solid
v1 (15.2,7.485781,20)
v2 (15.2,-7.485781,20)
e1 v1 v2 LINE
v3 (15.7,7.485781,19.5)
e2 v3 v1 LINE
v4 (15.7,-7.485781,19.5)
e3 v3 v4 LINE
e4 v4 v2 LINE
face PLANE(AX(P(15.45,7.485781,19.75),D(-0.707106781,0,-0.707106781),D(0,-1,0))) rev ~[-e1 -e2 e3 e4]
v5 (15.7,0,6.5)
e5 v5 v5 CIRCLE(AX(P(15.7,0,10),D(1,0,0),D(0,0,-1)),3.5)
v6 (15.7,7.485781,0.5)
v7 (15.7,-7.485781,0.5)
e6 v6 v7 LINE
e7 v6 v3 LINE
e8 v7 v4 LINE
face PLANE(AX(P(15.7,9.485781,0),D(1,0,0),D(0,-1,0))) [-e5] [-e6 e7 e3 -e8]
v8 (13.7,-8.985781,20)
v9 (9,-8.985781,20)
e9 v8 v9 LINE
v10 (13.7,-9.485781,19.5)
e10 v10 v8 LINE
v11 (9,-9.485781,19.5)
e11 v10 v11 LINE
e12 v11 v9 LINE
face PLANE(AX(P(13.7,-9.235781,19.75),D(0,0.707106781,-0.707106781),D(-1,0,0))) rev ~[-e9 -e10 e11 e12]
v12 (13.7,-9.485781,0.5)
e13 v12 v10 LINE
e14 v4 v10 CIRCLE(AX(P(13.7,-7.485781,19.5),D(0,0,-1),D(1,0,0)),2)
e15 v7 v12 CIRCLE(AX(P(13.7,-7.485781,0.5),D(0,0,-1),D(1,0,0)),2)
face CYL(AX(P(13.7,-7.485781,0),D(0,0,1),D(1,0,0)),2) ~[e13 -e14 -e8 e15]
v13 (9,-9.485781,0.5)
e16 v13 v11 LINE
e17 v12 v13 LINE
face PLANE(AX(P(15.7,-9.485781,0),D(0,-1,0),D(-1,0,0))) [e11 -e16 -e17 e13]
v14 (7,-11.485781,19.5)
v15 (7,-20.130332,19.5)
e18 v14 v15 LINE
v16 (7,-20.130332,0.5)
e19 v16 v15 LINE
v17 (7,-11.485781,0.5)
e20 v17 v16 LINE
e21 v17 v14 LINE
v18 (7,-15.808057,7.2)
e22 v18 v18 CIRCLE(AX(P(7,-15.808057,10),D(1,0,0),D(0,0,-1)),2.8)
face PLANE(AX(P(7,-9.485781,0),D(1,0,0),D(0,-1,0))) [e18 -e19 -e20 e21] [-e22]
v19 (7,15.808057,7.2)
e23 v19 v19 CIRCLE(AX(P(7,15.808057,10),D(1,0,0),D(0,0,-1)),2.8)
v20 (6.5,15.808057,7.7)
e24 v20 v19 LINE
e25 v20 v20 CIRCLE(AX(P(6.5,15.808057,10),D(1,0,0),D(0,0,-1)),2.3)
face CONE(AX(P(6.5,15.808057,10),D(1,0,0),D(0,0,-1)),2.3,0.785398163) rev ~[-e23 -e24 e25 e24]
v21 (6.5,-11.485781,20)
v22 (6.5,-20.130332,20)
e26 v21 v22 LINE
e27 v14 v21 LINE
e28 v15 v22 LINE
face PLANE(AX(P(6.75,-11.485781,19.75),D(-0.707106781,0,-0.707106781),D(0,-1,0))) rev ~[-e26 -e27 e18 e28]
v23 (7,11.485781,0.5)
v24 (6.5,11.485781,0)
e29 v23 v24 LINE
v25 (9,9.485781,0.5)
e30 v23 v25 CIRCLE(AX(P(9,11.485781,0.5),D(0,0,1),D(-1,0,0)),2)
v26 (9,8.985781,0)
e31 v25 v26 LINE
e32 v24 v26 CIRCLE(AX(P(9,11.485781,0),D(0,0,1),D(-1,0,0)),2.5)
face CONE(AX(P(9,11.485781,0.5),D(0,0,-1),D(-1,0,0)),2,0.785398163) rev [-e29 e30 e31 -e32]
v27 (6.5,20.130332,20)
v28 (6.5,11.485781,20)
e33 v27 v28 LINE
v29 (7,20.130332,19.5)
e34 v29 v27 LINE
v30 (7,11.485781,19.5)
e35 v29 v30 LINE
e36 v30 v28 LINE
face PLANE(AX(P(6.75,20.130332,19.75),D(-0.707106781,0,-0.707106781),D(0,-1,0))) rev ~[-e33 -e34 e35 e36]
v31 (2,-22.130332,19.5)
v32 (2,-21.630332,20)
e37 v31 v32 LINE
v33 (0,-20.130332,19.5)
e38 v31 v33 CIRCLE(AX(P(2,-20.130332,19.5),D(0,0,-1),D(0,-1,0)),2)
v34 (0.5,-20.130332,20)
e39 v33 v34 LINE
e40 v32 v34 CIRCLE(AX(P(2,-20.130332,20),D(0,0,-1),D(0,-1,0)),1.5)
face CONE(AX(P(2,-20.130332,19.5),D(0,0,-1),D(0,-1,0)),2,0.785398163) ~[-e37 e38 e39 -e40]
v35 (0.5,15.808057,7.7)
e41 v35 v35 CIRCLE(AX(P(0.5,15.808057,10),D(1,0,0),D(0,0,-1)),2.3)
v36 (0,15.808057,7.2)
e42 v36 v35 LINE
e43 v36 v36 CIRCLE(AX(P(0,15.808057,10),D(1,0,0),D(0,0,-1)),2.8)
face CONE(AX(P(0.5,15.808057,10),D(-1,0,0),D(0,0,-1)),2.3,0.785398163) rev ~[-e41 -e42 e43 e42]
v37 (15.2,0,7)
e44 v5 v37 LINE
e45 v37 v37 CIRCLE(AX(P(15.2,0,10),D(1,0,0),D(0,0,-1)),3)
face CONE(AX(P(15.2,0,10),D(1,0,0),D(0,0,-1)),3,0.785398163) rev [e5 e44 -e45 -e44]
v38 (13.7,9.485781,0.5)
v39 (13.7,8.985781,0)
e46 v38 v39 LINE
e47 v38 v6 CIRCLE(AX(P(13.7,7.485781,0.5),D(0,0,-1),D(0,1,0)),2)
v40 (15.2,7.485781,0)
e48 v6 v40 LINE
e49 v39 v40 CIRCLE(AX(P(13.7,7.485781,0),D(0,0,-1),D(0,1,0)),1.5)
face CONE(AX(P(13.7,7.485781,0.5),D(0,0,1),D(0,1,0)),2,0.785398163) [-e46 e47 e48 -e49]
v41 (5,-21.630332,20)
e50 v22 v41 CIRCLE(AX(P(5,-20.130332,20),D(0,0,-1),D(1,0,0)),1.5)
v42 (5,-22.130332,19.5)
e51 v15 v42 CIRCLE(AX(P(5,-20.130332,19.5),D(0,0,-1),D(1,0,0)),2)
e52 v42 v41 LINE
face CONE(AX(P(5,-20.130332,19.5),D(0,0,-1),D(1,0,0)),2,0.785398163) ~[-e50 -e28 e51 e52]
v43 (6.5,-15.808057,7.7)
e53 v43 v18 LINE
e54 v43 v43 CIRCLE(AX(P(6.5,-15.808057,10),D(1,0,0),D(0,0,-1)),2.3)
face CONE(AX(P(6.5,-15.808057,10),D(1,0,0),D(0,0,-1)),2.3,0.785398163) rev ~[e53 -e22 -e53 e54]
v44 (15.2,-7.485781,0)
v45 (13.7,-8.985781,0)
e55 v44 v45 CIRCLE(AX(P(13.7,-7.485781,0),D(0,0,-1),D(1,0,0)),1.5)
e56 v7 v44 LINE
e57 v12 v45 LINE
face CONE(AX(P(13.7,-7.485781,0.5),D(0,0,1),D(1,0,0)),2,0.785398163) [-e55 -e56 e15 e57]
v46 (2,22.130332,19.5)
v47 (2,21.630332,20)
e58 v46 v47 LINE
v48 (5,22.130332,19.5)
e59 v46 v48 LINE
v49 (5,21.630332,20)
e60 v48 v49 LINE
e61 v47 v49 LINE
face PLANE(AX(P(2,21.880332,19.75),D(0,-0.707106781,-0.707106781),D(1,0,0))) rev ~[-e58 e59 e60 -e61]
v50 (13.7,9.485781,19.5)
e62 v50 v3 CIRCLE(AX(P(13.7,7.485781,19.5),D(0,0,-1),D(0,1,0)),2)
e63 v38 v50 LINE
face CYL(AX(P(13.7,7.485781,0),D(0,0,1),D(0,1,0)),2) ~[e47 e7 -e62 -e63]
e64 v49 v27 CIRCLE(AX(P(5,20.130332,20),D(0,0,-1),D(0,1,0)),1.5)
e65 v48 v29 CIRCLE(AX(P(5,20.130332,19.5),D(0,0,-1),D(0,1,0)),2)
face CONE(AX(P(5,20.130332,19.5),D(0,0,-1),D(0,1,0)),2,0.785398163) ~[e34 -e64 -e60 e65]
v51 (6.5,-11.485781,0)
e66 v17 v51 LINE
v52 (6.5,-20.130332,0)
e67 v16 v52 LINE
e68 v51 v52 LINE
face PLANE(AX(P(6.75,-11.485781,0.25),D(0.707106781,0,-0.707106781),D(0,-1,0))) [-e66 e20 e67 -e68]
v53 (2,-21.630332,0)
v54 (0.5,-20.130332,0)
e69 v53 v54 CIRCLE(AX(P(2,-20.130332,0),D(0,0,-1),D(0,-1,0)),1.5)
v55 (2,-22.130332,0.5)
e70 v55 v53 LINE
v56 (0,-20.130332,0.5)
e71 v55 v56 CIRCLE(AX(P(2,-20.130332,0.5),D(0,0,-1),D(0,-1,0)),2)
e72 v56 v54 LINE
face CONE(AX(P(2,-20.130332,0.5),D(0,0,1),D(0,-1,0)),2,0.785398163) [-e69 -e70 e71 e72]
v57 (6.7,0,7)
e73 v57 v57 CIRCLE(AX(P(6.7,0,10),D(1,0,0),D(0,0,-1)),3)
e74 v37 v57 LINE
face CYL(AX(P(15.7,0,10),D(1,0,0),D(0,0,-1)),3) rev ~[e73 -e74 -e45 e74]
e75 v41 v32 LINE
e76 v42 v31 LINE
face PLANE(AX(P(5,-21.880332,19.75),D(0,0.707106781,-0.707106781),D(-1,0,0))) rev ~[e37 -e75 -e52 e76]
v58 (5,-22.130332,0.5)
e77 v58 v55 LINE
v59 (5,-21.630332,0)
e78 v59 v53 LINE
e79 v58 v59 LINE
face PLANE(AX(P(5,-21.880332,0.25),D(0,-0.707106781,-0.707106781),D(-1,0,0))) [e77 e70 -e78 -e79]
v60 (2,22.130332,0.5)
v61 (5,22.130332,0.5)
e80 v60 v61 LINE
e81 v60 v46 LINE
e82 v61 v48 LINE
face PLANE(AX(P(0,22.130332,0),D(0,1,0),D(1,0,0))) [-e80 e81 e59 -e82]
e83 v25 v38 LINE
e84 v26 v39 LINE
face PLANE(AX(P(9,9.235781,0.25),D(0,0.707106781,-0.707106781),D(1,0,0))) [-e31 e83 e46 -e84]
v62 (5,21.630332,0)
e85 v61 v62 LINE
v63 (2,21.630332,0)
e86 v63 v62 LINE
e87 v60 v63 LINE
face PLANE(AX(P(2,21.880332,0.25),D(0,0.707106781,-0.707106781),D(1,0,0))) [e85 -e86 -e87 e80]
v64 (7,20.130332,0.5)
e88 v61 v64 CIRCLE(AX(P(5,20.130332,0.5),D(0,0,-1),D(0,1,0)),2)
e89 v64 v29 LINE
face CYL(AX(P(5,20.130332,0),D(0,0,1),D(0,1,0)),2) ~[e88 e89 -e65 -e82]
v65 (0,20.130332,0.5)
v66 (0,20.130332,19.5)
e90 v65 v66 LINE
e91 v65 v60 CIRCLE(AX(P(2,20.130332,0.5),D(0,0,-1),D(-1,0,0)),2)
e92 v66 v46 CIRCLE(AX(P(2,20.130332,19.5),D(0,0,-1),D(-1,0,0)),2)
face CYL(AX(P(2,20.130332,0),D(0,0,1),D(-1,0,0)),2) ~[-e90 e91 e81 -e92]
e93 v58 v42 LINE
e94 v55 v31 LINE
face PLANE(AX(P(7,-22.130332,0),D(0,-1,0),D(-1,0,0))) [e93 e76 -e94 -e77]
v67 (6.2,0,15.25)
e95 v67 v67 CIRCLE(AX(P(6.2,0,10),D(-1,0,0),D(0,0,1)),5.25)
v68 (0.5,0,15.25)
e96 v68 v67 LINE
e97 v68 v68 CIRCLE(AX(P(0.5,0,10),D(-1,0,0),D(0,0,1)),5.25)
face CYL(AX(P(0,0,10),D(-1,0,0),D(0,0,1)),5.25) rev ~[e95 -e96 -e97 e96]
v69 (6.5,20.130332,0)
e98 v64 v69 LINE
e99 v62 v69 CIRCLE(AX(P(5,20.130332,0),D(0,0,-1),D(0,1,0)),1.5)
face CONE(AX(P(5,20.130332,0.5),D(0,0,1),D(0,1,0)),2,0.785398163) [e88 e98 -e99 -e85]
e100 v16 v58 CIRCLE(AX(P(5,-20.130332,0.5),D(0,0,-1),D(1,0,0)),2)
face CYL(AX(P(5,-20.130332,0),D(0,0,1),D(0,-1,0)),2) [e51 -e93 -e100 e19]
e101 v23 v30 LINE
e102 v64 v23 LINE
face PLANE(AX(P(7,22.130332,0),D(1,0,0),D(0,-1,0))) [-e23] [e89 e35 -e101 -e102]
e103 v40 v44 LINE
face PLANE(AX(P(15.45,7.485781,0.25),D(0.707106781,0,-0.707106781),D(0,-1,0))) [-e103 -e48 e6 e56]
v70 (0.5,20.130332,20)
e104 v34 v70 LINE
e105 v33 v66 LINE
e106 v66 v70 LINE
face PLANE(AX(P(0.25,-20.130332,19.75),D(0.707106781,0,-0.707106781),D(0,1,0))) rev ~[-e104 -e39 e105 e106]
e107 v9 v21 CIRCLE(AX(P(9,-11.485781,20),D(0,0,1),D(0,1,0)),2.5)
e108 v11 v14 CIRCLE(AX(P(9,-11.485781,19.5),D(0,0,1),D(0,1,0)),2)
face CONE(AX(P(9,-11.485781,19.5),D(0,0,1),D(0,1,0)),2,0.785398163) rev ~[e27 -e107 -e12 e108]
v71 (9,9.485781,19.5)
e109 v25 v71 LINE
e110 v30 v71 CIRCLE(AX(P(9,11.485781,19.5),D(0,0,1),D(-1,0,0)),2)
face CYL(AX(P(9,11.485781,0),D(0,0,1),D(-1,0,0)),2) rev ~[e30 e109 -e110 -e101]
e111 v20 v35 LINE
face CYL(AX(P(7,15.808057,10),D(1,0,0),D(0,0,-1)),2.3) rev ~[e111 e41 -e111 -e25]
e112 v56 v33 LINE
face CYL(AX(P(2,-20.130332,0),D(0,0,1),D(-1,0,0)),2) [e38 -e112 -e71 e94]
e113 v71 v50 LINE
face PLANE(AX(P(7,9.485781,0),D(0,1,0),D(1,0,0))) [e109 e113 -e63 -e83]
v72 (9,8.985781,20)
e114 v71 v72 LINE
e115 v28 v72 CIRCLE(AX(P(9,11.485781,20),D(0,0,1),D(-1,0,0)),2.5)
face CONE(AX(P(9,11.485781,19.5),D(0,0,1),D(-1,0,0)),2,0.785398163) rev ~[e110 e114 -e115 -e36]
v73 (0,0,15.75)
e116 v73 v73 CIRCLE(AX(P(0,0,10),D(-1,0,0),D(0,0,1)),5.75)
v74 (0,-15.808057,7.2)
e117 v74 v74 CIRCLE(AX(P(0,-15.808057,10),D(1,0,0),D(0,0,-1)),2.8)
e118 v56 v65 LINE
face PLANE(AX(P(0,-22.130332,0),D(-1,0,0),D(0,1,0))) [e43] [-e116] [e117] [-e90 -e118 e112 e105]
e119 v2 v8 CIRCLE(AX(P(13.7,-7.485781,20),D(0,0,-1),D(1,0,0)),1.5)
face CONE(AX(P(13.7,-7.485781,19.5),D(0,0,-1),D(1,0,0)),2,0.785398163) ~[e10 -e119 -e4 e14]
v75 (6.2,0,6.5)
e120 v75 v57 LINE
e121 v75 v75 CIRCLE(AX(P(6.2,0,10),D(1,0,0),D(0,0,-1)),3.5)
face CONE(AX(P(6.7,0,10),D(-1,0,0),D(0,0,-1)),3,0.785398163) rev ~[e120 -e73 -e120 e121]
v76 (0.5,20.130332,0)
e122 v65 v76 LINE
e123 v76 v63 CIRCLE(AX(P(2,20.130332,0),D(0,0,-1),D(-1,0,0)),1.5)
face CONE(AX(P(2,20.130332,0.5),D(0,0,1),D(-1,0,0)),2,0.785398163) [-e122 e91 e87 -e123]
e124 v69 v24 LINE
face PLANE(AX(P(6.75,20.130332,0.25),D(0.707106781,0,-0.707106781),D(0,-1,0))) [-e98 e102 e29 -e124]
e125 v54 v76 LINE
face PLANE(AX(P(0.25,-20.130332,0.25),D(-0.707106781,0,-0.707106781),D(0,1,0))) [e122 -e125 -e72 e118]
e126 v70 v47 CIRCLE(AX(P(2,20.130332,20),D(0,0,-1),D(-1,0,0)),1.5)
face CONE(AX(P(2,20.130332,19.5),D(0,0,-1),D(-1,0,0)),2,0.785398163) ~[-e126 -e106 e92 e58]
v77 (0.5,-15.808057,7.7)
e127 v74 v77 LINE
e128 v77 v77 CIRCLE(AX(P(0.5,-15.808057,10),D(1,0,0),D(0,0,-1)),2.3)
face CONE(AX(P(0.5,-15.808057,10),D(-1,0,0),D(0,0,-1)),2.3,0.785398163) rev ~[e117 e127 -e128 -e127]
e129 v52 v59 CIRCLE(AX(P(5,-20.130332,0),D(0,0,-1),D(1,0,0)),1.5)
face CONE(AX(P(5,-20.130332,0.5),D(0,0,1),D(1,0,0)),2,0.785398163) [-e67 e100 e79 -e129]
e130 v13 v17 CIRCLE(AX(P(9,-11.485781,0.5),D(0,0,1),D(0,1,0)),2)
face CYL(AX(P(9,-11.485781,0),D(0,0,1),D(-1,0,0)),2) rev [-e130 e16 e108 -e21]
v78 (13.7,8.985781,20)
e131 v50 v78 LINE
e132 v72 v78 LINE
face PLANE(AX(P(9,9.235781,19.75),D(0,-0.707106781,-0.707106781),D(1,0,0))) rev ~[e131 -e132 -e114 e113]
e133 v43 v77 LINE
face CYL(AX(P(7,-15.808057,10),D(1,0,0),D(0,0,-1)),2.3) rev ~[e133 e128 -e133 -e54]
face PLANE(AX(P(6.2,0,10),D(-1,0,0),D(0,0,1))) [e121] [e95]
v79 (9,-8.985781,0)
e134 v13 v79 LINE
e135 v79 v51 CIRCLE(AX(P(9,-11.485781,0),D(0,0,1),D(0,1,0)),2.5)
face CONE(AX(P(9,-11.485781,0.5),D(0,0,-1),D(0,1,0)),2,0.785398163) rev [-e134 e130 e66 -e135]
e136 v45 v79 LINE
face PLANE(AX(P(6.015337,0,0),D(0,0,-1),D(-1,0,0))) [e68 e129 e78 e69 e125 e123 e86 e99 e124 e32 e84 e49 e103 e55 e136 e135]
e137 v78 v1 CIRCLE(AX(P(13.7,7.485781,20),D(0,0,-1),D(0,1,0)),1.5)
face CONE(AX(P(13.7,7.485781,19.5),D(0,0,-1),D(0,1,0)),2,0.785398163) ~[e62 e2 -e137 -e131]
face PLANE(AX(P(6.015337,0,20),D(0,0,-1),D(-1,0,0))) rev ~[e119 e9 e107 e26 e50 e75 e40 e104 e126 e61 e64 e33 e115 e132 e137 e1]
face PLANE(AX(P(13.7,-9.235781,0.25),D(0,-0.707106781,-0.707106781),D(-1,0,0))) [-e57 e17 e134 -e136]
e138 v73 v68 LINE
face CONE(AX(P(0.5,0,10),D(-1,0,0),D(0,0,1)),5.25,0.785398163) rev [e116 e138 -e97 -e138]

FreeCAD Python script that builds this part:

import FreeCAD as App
import Part
import Sketcher
from FreeCAD import Vector


def edges_at(feature, points):
    """Names of the edges that pass closest to the given points."""
    edges = feature.Shape.Edges
    near = lambda p: min(range(len(edges)), key=lambda i: edges[i].distToShape(Part.Vertex(*p))[0])
    return sorted({f"Edge{near(p) + 1}" for p in points})

doc = App.newDocument("Part")
body = doc.addObject("PartDesign::Body", "Body")

sketch1 = body.newObject("Sketcher::SketchObject", "Sketch")
sketch1.AttachmentSupport = (doc.getObject("XY_Plane"), [""])
sketch1.MapMode = "FlatFace"
sketch1.addGeometry([
    Part.LineSegment(Vector(0, 22.130332, 0), Vector(0, -22.130332, 0)),
    Part.LineSegment(Vector(0, -22.130332, 0), Vector(7, -22.130332, 0)),
    Part.LineSegment(Vector(7, -22.130332, 0), Vector(7, -9.485781, 0)),
    Part.LineSegment(Vector(7, -9.485781, 0), Vector(15.7, -9.485781, 0)),
    Part.LineSegment(Vector(15.7, -9.485781, 0), Vector(15.7, 9.485781, 0)),
    Part.LineSegment(Vector(15.7, 9.485781, 0), Vector(7, 9.485781, 0)),
    Part.LineSegment(Vector(7, 9.485781, 0), Vector(7, 22.130332, 0)),
    Part.LineSegment(Vector(7, 22.130332, 0), Vector(0, 22.130332, 0)),
], False)
sketch1.addConstraint([
    Sketcher.Constraint("Coincident", 0, 2, 1, 1),
    Sketcher.Constraint("Coincident", 1, 2, 2, 1),
    Sketcher.Constraint("Coincident", 2, 2, 3, 1),
    Sketcher.Constraint("Coincident", 3, 2, 4, 1),
    Sketcher.Constraint("Coincident", 4, 2, 5, 1),
    Sketcher.Constraint("Coincident", 5, 2, 6, 1),
    Sketcher.Constraint("Coincident", 6, 2, 7, 1),
    Sketcher.Constraint("Coincident", 7, 2, 0, 1),
    Sketcher.Constraint("Vertical", 0),
    Sketcher.Constraint("Horizontal", 1),
    Sketcher.Constraint("Vertical", 2),
    Sketcher.Constraint("Horizontal", 3),
    Sketcher.Constraint("Vertical", 4),
    Sketcher.Constraint("Horizontal", 5),
    Sketcher.Constraint("Vertical", 6),
    Sketcher.Constraint("Horizontal", 7),
    Sketcher.Constraint("Symmetric", 0, 2, 7, 2, -1, 1),
    Sketcher.Constraint("Symmetric", 2, 2, 5, 2, -1),
    Sketcher.Constraint("DistanceX", 1, 1, 1, 2, 7.0),
    Sketcher.Constraint("DistanceX", 3, 1, 3, 2, 8.7),
    Sketcher.Constraint("DistanceY", 2, 1, 2, 2, 12.644551),
    Sketcher.Constraint("DistanceY", 0, 2, 0, 1, 44.260665),
])
pad1 = body.newObject("PartDesign::Pad", "Pad")
pad1.Profile = sketch1
pad1.Length = 20

sketch2 = body.newObject("Sketcher::SketchObject", "Sketch001")
sketch2.AttachmentSupport = (doc.getObject("YZ_Plane"), [""])
sketch2.MapMode = "FlatFace"
sketch2.AttachmentOffset = App.Placement(Vector(0, 0, 15.7), App.Rotation())
sketch2.addGeometry(Part.Circle(Vector(0, 10, 0), Vector(0, 0, 1), 3), False)
sketch2.addConstraint([
    Sketcher.Constraint("PointOnObject", 0, 3, -2),
    Sketcher.Constraint("Diameter", 0, 6.0),
    Sketcher.Constraint("DistanceY", -1, 1, 0, 3, 10.0),
])
pocket1 = body.newObject("PartDesign::Pocket", "Pocket")
pocket1.Profile = sketch2
pocket1.Length = 20

sketch3 = body.newObject("Sketcher::SketchObject", "Sketch002")
sketch3.AttachmentSupport = (doc.getObject("YZ_Plane"), [""])
sketch3.MapMode = "FlatFace"
sketch3.addGeometry(Part.Circle(Vector(0, 10, 0), Vector(0, 0, 1), 5.25), False)
sketch3.addConstraint([
    Sketcher.Constraint("PointOnObject", 0, 3, -2),
    Sketcher.Constraint("Diameter", 0, 10.5),
    Sketcher.Constraint("DistanceY", -1, 1, 0, 3, 10.0),
])
pocket2 = body.newObject("PartDesign::Pocket", "Pocket001")
pocket2.Profile = sketch3
pocket2.Length = 6.2
pocket2.Reversed = True

sketch4 = body.newObject("Sketcher::SketchObject", "Sketch003")
sketch4.AttachmentSupport = (doc.getObject("YZ_Plane"), [""])
sketch4.MapMode = "FlatFace"
sketch4.AttachmentOffset = App.Placement(Vector(0, 0, 7), App.Rotation())
sketch4.addGeometry([
    Part.Circle(Vector(-15.808057, 10, 0), Vector(0, 0, 1), 2.3),
    Part.Circle(Vector(15.808057, 10, 0), Vector(0, 0, 1), 2.3),
], False)
sketch4.addConstraint([
    Sketcher.Constraint("Equal", 0, 1),
    Sketcher.Constraint("Symmetric", 0, 3, 1, 3, -2),
    Sketcher.Constraint("Diameter", 0, 4.6),
    Sketcher.Constraint("DistanceY", -1, 1, 0, 3, 10.0),
    Sketcher.Constraint("DistanceX", 0, 3, -1, 1, 15.808057),
])
pocket3 = body.newObject("PartDesign::Pocket", "Pocket002")
pocket3.Profile = sketch4
pocket3.Length = 10
doc.recompute()

fillet = body.newObject("PartDesign::Fillet", "Fillet")
fillet.Base = (pocket3, edges_at(pocket3, [
    (7, -9.486, 10),
    (7, -22.13, 10),
    (0, -22.13, 10),
    (0, 22.13, 10),
    (7, 22.13, 10),
    (7, 9.486, 10),
    (15.7, 9.486, 10),
    (15.7, -9.486, 10),
]))
fillet.Radius = 2
doc.recompute()

chamfer = body.newObject("PartDesign::Chamfer", "Chamfer")
chamfer.Base = (fillet, edges_at(fillet, [
    (15.7, 0, 13),
    (0, 0, 4.75),
    (6.2, 0, 13),
    (0, -15.808, 12.3),
    (7, -15.808, 12.3),
    (0, 15.808, 12.3),
    (7, 15.808, 12.3),
    (0, 0, 0),
    (0, 0, 20),
    (11.35, -9.486, 0),
    (7, -15.808, 0),
    (3.5, -22.13, 0),
    (3.5, 22.13, 0),
    (7, 15.808, 0),
    (11.35, 9.486, 0),
    (15.7, 0, 0),
    (0.586, -21.545, 0),
    (6.414, -21.545, 0),
    (15.114, -8.9, 0),
    (15.114, 8.9, 0),
    (6.414, 21.545, 0),
    (0.586, 21.545, 0),
    (3.5, 22.13, 20),
    (11.35, -9.486, 20),
    (15.7, 0, 20),
    (11.35, 9.486, 20),
    (7, 15.808, 20),
    (3.5, -22.13, 20),
    (7, -15.808, 20),
    (0.586, -21.545, 20),
    (6.414, -21.545, 20),
    (15.114, -8.9, 20),
    (15.114, 8.9, 20),
    (6.414, 21.545, 20),
    (0.586, 21.545, 20),
    (7.586, -10.072, 0),
    (7.586, -10.072, 20),
    (7.586, 10.072, 0),
    (7.586, 10.072, 20),
]))
chamfer.Size = 0.5

doc.recompute()
